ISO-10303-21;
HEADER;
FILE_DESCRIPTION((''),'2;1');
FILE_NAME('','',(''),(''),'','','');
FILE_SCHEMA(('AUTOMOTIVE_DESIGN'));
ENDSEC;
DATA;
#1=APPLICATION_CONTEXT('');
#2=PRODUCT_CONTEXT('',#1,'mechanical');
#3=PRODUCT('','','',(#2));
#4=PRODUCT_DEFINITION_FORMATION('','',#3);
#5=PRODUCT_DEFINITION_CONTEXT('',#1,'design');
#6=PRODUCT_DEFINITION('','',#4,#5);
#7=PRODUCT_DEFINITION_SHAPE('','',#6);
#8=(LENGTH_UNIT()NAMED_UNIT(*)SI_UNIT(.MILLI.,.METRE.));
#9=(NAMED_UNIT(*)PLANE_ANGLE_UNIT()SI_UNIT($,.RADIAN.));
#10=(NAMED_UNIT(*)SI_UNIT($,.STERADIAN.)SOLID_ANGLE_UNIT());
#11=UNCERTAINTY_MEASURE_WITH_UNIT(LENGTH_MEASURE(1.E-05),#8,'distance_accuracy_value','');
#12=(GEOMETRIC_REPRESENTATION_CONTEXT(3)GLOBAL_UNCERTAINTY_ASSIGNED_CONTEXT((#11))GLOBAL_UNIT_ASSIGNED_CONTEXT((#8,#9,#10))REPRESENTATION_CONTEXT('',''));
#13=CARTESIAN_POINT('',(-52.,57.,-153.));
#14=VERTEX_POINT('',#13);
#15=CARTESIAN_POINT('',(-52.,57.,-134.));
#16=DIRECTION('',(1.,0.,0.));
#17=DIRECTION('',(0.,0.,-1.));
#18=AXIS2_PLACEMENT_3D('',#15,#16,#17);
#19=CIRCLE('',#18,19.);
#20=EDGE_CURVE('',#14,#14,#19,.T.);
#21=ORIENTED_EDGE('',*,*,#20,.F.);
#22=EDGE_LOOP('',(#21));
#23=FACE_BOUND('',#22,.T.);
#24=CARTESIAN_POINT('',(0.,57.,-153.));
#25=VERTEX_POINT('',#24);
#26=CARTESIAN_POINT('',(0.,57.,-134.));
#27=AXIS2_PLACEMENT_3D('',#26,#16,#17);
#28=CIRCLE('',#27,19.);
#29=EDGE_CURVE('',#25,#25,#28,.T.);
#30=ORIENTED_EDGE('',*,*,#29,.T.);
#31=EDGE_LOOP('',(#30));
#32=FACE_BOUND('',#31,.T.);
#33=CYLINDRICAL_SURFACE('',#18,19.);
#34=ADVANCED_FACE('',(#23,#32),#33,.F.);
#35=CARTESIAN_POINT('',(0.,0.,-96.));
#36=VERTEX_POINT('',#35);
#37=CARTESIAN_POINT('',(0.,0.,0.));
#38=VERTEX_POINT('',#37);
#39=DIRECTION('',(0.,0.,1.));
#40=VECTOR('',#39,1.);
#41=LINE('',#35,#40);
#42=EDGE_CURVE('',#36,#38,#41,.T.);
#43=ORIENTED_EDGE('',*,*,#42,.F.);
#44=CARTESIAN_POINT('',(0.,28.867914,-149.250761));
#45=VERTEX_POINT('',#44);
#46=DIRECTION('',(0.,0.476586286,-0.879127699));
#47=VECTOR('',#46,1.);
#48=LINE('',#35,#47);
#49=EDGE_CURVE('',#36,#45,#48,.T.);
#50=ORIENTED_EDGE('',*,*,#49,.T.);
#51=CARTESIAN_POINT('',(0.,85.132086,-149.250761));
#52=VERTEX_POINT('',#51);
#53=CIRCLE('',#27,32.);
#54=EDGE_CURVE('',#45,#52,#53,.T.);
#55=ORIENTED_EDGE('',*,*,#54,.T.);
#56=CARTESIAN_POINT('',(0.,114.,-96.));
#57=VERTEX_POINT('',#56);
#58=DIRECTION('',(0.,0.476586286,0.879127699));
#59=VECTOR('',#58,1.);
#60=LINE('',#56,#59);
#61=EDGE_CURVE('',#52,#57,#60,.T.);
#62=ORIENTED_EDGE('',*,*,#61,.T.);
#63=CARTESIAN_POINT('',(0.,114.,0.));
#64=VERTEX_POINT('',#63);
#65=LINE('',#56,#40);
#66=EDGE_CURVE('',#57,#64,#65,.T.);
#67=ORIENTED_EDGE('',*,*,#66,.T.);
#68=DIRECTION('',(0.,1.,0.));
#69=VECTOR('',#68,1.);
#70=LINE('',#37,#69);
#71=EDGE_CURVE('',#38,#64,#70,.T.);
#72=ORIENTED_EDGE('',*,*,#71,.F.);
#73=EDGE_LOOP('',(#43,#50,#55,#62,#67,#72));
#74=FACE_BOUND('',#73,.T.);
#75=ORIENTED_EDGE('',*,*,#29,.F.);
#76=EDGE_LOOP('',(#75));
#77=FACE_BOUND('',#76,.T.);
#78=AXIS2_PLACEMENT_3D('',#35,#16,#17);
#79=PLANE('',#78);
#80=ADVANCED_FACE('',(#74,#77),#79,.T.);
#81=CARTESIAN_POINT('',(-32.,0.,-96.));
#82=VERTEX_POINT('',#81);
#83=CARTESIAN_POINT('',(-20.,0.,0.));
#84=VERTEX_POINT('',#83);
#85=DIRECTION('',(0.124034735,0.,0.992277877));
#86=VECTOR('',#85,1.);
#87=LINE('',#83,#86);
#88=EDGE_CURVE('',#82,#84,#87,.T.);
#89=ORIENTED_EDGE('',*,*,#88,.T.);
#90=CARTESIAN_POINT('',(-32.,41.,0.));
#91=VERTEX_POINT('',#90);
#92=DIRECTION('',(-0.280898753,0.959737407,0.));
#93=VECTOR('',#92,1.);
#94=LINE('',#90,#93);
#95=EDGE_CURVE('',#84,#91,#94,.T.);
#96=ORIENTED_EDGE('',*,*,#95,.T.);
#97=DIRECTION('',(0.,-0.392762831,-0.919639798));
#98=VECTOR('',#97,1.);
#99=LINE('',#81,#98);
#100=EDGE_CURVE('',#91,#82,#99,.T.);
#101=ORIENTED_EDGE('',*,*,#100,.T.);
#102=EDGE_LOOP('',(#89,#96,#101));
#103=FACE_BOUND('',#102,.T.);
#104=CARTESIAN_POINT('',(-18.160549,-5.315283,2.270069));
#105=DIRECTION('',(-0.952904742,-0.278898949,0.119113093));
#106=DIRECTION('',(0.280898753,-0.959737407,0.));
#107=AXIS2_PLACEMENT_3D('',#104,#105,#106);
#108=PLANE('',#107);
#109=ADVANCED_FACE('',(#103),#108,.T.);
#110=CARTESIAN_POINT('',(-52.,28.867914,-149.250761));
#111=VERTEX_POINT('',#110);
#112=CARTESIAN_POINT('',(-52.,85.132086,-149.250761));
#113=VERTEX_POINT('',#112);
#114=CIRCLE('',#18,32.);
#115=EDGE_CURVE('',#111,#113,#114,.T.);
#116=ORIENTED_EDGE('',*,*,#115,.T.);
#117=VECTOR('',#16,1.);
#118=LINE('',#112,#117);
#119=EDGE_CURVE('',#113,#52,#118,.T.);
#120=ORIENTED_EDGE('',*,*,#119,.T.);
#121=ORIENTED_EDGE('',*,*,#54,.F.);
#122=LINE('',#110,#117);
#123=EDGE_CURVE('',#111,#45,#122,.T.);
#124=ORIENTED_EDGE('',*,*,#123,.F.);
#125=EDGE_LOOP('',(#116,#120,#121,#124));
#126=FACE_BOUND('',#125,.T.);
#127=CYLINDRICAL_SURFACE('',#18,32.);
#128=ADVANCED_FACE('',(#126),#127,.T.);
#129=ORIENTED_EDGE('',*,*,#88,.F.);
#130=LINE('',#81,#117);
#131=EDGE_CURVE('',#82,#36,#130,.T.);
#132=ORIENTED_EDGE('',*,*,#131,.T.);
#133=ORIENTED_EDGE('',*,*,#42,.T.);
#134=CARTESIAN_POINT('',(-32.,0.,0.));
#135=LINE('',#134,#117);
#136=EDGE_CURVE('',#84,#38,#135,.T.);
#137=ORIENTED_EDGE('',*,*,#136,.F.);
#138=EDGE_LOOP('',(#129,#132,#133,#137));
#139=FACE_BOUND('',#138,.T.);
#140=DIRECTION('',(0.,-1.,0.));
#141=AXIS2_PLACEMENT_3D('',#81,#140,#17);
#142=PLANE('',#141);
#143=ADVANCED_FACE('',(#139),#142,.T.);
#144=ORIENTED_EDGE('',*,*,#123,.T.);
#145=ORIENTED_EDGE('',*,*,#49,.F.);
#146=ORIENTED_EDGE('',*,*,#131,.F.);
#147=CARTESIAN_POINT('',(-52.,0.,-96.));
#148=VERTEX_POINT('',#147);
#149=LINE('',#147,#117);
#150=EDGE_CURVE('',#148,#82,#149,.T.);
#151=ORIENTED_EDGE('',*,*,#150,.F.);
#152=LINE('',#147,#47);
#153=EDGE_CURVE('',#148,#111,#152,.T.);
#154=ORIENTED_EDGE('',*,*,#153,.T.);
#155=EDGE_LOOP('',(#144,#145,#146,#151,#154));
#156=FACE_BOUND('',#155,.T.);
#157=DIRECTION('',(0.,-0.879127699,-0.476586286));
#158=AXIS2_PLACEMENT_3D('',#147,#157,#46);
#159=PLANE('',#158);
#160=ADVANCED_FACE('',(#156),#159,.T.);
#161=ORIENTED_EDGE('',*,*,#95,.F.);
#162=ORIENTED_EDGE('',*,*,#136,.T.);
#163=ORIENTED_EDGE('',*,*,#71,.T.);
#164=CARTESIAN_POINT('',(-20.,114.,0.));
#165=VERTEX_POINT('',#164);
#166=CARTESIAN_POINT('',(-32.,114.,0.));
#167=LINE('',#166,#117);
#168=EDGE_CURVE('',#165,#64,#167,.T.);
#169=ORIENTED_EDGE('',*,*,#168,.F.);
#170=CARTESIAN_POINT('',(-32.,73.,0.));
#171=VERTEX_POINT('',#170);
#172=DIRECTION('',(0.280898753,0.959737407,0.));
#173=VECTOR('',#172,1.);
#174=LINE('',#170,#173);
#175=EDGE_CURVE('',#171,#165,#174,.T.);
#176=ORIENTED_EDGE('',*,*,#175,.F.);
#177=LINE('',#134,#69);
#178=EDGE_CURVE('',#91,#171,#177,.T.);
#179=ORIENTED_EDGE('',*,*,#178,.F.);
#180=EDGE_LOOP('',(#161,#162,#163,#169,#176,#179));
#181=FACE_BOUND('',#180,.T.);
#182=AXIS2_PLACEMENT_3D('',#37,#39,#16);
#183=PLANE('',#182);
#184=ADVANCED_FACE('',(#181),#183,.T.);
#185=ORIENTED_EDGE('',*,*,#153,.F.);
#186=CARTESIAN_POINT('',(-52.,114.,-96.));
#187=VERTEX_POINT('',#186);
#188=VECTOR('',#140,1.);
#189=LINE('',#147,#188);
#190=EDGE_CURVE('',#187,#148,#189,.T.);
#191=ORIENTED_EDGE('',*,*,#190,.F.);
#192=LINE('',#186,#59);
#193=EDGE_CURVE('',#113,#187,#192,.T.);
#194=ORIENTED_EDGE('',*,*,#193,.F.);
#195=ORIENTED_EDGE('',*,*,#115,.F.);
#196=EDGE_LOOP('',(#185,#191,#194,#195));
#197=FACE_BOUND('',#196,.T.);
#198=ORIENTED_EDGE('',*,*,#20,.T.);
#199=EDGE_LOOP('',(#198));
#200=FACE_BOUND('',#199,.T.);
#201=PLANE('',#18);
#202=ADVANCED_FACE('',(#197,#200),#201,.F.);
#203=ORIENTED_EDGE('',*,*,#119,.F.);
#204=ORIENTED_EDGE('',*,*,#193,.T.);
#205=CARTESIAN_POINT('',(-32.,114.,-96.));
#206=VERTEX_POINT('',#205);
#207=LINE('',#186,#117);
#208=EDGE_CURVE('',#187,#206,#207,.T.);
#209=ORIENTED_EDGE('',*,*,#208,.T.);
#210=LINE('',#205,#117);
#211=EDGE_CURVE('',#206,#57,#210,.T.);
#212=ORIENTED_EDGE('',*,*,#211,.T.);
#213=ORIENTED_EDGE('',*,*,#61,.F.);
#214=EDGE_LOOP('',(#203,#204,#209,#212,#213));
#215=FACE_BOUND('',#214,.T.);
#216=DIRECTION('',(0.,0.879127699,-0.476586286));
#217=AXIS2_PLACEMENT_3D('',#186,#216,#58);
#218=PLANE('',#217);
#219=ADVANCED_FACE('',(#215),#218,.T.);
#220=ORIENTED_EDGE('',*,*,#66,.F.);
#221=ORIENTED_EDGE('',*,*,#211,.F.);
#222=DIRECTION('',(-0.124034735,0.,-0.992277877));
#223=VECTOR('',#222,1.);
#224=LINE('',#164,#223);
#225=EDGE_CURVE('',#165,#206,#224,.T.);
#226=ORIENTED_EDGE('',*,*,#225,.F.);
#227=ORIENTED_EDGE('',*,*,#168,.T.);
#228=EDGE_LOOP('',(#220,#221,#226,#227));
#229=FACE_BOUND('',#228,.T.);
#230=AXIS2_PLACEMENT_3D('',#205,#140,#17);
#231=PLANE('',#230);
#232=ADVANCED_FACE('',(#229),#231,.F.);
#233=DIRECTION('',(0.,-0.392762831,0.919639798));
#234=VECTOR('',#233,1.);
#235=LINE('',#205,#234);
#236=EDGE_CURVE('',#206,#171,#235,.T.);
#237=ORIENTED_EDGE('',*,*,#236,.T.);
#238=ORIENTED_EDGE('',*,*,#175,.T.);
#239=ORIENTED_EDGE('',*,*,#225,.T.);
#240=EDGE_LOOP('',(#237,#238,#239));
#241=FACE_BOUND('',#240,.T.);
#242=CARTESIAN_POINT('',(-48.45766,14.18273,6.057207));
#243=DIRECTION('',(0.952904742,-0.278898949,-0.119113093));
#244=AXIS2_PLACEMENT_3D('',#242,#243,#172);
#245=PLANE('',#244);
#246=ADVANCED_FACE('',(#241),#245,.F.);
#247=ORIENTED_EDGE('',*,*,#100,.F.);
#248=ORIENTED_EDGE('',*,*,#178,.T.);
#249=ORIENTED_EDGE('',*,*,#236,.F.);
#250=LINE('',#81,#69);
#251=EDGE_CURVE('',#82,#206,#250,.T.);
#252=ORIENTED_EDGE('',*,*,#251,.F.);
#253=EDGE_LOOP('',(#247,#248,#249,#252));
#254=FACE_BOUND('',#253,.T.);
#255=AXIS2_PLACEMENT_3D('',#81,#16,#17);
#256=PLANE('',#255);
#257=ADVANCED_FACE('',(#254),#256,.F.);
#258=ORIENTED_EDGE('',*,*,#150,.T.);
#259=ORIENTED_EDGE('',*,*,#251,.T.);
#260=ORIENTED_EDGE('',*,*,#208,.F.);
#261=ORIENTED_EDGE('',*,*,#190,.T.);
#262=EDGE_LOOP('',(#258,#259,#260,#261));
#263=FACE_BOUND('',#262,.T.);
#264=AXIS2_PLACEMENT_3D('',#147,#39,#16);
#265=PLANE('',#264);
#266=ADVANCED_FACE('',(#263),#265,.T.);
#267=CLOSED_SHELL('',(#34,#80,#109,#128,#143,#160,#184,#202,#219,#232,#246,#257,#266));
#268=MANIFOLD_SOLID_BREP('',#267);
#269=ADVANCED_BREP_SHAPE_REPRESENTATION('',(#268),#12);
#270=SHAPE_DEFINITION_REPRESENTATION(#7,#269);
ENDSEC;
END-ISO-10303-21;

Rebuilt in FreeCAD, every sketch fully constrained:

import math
import FreeCAD as App
import Part
import Sketcher
from FreeCAD import Vector

doc = App.newDocument("Part")
body = doc.addObject("PartDesign::Body", "Body")

# Sketch on XY plane
sketch1 = body.newObject("Sketcher::SketchObject", "Sketch")
sketch1.AttachmentSupport = (doc.getObject("XY_Plane"), [""])
sketch1.MapMode = "FlatFace"
sketch1.addGeometry(Part.LineSegment(Vector(-32, 114, 0), Vector(-32, 0, 0)), False)
sketch1.addGeometry(Part.LineSegment(Vector(-32, 0, 0), Vector(0, 0, 0)), False)
sketch1.addGeometry(Part.LineSegment(Vector(0, 0, 0), Vector(0, 114, 0)), False)
sketch1.addGeometry(Part.LineSegment(Vector(0, 114, 0), Vector(-32, 114, 0)), False)
sketch1.addConstraint(Sketcher.Constraint("Coincident", 0, 2, 1, 1))
sketch1.addConstraint(Sketcher.Constraint("Coincident", 1, 2, 2, 1))
sketch1.addConstraint(Sketcher.Constraint("Coincident", 2, 2, 3, 1))
sketch1.addConstraint(Sketcher.Constraint("Coincident", 3, 2, 0, 1))
sketch1.addConstraint(Sketcher.Constraint("Vertical", 0))
sketch1.addConstraint(Sketcher.Constraint("Horizontal", 1))
sketch1.addConstraint(Sketcher.Constraint("Vertical", 2))
sketch1.addConstraint(Sketcher.Constraint("Horizontal", 3))
sketch1.addConstraint(Sketcher.Constraint("Coincident", 1, 2, -1, 1))
sketch1.addConstraint(Sketcher.Constraint("DistanceX", 1, 1, 1, 2, 32.0))
sketch1.addConstraint(Sketcher.Constraint("DistanceY", 0, 2, 0, 1, 114.0))
pad1 = body.newObject("PartDesign::Pad", "Pad")
pad1.Profile = sketch1
pad1.Length = 96
pad1.Reversed = True

# Sketch on an angled plane
sketch2 = body.newObject("Sketcher::SketchObject", "Sketch001")
sketch2.Placement = App.Placement(Vector(-18.160549, -5.315283, 2.270069), App.Rotation(Vector(0.114317291, 0.033458719, 0.992880693), Vector(-0.280898753, 0.959737407, 0), Vector(-0.952904742, -0.278898949, 0.119113093), "ZXY"))
sketch2.addGeometry(Part.LineSegment(Vector(-2, 48, 0), Vector(-99, 9, 0)), False)
sketch2.addGeometry(Part.LineSegment(Vector(-99, 9, 0), Vector(-2, 6, 0)), False)
sketch2.addGeometry(Part.LineSegment(Vector(-2, 6, 0), Vector(-2, 48, 0)), False)
sketch2.addConstraint(Sketcher.Constraint("Coincident", 0, 2, 1, 1))
sketch2.addConstraint(Sketcher.Constraint("Coincident", 1, 2, 2, 1))
sketch2.addConstraint(Sketcher.Constraint("Coincident", 2, 2, 0, 1))
sketch2.addConstraint(Sketcher.Constraint("Vertical", 2))
sketch2.addConstraint(Sketcher.Constraint("DistanceY", 2, 1, 2, 2, 42.720019))
sketch2.addConstraint(Sketcher.Constraint("DistanceX", 0, 2, -1, 1, 98.9747))
sketch2.addConstraint(Sketcher.Constraint("DistanceY", -1, 1, 0, 2, 8.98876))
sketch2.addConstraint(Sketcher.Constraint("Distance", 0, 104.388697))
sketch2.addConstraint(Sketcher.Constraint("Distance", 1, 96.747093))
pocket1 = body.newObject("PartDesign::Pocket", "Pocket")
pocket1.Profile = sketch2
pocket1.Length = 11.434857
pocket1.Reversed = True

# Sketch on an angled plane
sketch3 = body.newObject("Sketcher::SketchObject", "Sketch002")
sketch3.Placement = App.Placement(Vector(-48.45766, 14.18273, 6.057207), App.Rotation(Vector(0.114317291, -0.033458719, 0.992880693), Vector(0.280898753, 0.959737407, 0), Vector(-0.952904742, 0.278898949, 0.119113093), "ZXY"))
sketch3.addGeometry(Part.LineSegment(Vector(-6, 61, 0), Vector(-6, 104, 0)), False)
sketch3.addGeometry(Part.LineSegment(Vector(-6, 104, 0), Vector(-103, 100, 0)), False)
sketch3.addGeometry(Part.LineSegment(Vector(-103, 100, 0), Vector(-6, 61, 0)), False)
sketch3.addConstraint(Sketcher.Constraint("Coincident", 0, 2, 1, 1))
sketch3.addConstraint(Sketcher.Constraint("Coincident", 1, 2, 2, 1))
sketch3.addConstraint(Sketcher.Constraint("Coincident", 2, 2, 0, 1))
sketch3.addConstraint(Sketcher.Constraint("Vertical", 0))
sketch3.addConstraint(Sketcher.Constraint("DistanceY", 0, 1, 0, 2, 42.720019))
sketch3.addConstraint(Sketcher.Constraint("DistanceX", 0, 2, -1, 1, 6.10064))
sketch3.addConstraint(Sketcher.Constraint("DistanceY", -1, 1, 0, 2, 103.792089))
sketch3.addConstraint(Sketcher.Constraint("Distance", 1, 96.747093))
sketch3.addConstraint(Sketcher.Constraint("Distance", 2, 104.388697))
pocket2 = body.newObject("PartDesign::Pocket", "Pocket001")
pocket2.Profile = sketch3
pocket2.Length = 11.434857
pocket2.Reversed = True

# Sketch on YZ plane
sketch4 = body.newObject("Sketcher::SketchObject", "Sketch003")
sketch4.AttachmentSupport = (doc.getObject("YZ_Plane"), [""])
sketch4.MapMode = "FlatFace"
sketch4.addGeometry(Part.LineSegment(Vector(85, -149, 0), Vector(114, -96, 0)), False)
sketch4.addGeometry(Part.LineSegment(Vector(114, -96, 0), Vector(0, -96, 0)), False)
sketch4.addGeometry(Part.LineSegment(Vector(0, -96, 0), Vector(29, -149, 0)), False)
sketch4.addGeometry(Part.ArcOfCircle(Part.Circle(Vector(57, -134, 0), Vector(0, 0, 1), 32), math.radians(-152), math.radians(-28)), False)
sketch4.addGeometry(Part.Circle(Vector(57, -134, 0), Vector(0, 0, 1), 19), False)
sketch4.addConstraint(Sketcher.Constraint("Coincident", 0, 2, 1, 1))
sketch4.addConstraint(Sketcher.Constraint("Coincident", 1, 2, 2, 1))
sketch4.addConstraint(Sketcher.Constraint("Tangent", 2, 2, 3, 1))
sketch4.addConstraint(Sketcher.Constraint("Tangent", 3, 2, 0, 1))
sketch4.addConstraint(Sketcher.Constraint("Horizontal", 1))
sketch4.addConstraint(Sketcher.Constraint("Coincident", 4, 3, 3, 3))
sketch4.addConstraint(Sketcher.Constraint("PointOnObject", 1, 2, -2))
sketch4.addConstraint(Sketcher.Constraint("Horizontal", 2, 2, 3, 2))
sketch4.addConstraint(Sketcher.Constraint("Diameter", 4, 38.0))
sketch4.addConstraint(Sketcher.Constraint("Radius", 3, 32.0))
sketch4.addConstraint(Sketcher.Constraint("DistanceX", 1, 2, 1, 1, 114.0))
sketch4.addConstraint(Sketcher.Constraint("DistanceY", 3, 3, -1, 1, 134.0))
sketch4.addConstraint(Sketcher.Constraint("DistanceY", 0, 2, -1, 1, 96.0))
pad2 = body.newObject("PartDesign::Pad", "Pad001")
pad2.Profile = sketch4
pad2.Length = 52
pad2.Reversed = True

doc.recompute()
